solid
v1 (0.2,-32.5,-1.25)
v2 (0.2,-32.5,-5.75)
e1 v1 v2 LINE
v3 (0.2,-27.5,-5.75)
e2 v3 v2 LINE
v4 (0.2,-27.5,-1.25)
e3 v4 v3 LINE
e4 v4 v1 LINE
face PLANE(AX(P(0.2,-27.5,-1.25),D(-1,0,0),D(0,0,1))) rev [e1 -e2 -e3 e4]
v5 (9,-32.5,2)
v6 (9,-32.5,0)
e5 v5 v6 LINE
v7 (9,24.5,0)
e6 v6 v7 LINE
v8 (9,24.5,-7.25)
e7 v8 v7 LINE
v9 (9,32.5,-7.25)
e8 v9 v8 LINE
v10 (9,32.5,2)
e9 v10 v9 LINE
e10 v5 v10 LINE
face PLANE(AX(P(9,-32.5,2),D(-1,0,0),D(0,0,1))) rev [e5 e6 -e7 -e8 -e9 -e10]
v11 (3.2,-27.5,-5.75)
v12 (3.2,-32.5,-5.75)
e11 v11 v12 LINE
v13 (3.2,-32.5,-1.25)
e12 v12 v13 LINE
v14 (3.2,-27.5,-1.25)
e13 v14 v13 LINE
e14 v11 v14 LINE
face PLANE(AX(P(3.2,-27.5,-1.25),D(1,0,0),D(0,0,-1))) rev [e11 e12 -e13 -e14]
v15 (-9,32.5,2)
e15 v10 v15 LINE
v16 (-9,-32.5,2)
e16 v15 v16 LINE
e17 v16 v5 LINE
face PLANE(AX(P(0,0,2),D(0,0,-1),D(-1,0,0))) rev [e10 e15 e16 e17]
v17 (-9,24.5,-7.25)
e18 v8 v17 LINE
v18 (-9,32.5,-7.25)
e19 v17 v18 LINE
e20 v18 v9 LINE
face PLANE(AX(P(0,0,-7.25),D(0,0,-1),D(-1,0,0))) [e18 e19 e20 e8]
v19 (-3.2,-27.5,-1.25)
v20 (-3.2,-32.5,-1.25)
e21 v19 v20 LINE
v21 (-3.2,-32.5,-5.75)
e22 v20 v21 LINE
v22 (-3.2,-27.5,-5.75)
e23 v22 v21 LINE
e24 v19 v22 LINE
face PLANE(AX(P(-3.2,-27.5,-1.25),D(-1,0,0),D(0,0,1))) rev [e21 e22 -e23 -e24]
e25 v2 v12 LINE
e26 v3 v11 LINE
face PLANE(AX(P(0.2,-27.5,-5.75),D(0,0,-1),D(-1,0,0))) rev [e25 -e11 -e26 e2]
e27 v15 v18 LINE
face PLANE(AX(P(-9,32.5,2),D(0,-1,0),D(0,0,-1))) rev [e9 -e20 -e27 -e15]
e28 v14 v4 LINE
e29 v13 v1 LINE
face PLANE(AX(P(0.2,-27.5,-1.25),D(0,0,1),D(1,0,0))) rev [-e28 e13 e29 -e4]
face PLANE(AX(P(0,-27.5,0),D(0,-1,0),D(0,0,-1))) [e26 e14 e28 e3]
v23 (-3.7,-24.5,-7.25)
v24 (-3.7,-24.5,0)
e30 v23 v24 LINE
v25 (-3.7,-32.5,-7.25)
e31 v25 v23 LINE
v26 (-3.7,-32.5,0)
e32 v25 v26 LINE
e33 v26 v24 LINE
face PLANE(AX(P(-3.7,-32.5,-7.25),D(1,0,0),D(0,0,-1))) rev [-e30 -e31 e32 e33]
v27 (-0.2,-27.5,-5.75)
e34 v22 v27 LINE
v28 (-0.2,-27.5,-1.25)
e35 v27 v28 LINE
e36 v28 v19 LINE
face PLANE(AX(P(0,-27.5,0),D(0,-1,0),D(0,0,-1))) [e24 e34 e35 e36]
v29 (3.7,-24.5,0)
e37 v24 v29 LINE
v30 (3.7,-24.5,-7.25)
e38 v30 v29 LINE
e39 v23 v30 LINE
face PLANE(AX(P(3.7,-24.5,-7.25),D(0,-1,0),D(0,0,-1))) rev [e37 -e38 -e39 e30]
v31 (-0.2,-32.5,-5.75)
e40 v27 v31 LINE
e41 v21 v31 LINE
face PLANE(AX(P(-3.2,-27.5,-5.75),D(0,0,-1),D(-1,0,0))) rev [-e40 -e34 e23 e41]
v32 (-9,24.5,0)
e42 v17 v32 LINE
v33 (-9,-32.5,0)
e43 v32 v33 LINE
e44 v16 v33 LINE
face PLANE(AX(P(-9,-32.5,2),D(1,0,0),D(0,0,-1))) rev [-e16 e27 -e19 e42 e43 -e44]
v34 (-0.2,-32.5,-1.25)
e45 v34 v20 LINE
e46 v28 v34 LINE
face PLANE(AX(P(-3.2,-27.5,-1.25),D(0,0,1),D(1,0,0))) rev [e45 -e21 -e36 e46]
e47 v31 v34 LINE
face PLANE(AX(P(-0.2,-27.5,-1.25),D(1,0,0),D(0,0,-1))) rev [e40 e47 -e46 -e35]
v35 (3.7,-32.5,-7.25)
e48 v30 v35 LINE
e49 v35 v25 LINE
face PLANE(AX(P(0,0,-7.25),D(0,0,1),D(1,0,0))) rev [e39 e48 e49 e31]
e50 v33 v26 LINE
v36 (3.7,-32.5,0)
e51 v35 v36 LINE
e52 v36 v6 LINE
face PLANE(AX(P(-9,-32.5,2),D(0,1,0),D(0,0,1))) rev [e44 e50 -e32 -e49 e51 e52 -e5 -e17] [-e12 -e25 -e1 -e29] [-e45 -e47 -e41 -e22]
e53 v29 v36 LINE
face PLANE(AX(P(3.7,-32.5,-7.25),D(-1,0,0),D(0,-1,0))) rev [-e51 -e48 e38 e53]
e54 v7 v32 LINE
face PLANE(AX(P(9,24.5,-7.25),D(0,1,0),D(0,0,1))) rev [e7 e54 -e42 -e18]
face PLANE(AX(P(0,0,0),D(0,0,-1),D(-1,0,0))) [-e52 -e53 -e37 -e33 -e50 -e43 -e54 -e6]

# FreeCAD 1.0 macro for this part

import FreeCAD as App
import Part
import Sketcher

V = App.Vector


def add_polygon(sketch, points):
    """Adds a closed chain of lines whose ends are joined by coincident constraints."""
    first, n = sketch.GeometryCount, len(points)
    for a, b in zip(points, points[1:] + points[:1]):
        sketch.addGeometry(Part.LineSegment(App.Vector(*a, 0), App.Vector(*b, 0)), False)
    for i in range(n):
        sketch.addConstraint(Sketcher.Constraint("Coincident", first + i, 2, first + (i + 1) % n, 1))

doc = App.newDocument("Part")
body = doc.addObject("PartDesign::Body", "Body")

# Sketch on XY plane
sketch1 = doc.addObject("Sketcher::SketchObject", "Sketch")
body.addObject(sketch1)
sketch1.AttachmentSupport = (doc.XY_Plane, [""])
sketch1.MapMode = "FlatFace"
add_polygon(sketch1, [(-9, 32.5), (-9, -32.5), (9, -32.5), (9, 32.5)])  # lines 0-3
sketch1.addConstraint(Sketcher.Constraint("Vertical", 0))
sketch1.addConstraint(Sketcher.Constraint("Horizontal", 1))
sketch1.addConstraint(Sketcher.Constraint("Vertical", 2))
sketch1.addConstraint(Sketcher.Constraint("Horizontal", 3))
sketch1.addConstraint(Sketcher.Constraint("Symmetric", 0, 2, 2, 2, -1, 1))
sketch1.addConstraint(Sketcher.Constraint("DistanceX", 1, 1, 1, 2, 18.0))
sketch1.addConstraint(Sketcher.Constraint("DistanceY", 0, 2, 0, 1, 65.0))
pad1 = doc.addObject("PartDesign::Pad", "Pad")
body.addObject(pad1)
pad1.Profile = sketch1
pad1.Length = 2

# Sketch on XY plane
sketch2 = doc.addObject("Sketcher::SketchObject", "Sketch001")
body.addObject(sketch2)
sketch2.AttachmentSupport = (doc.XY_Plane, [""])
sketch2.MapMode = "FlatFace"
add_polygon(sketch2, [(3.7, -24.5), (3.7, -32.5), (-3.7, -32.5), (-3.7, -24.5)])  # lines 0-3
sketch2.addConstraint(Sketcher.Constraint("Vertical", 0))
sketch2.addConstraint(Sketcher.Constraint("Horizontal", 1))
sketch2.addConstraint(Sketcher.Constraint("Vertical", 2))
sketch2.addConstraint(Sketcher.Constraint("Horizontal", 3))
sketch2.addConstraint(Sketcher.Constraint("DistanceY", 0, 2, 0, 1, 8.0))
sketch2.addConstraint(Sketcher.Constraint("DistanceX", 1, 2, 1, 1, 7.4))
sketch2.addConstraint(Sketcher.Constraint("DistanceX", -1, 1, 0, 2, 3.7))
sketch2.addConstraint(Sketcher.Constraint("DistanceY", 0, 2, -1, 1, 32.5))
pad2 = doc.addObject("PartDesign::Pad", "Pad001")
body.addObject(pad2)
pad2.Profile = sketch2
pad2.Length = 7.25
pad2.Reversed = True

# Sketch on XZ plane
sketch3 = doc.addObject("Sketcher::SketchObject", "Sketch002")
body.addObject(sketch3)
sketch3.AttachmentSupport = (doc.XZ_Plane, [""])
sketch3.MapMode = "FlatFace"
sketch3.AttachmentOffset = App.Placement(V(0, 0, 32.5), App.Rotation())
add_polygon(sketch3, [(-3.2, -1.25), (-3.2, -5.75), (-0.2, -5.75), (-0.2, -1.25)])  # lines 0-3
add_polygon(sketch3, [(0.2, -1.25), (0.2, -5.75), (3.2, -5.75), (3.2, -1.25)])  # lines 4-7
sketch3.addConstraint(Sketcher.Constraint("Vertical", 0))
sketch3.addConstraint(Sketcher.Constraint("Horizontal", 1))
sketch3.addConstraint(Sketcher.Constraint("Vertical", 2))
sketch3.addConstraint(Sketcher.Constraint("Horizontal", 3))
sketch3.addConstraint(Sketcher.Constraint("Vertical", 4))
sketch3.addConstraint(Sketcher.Constraint("Horizontal", 5))
sketch3.addConstraint(Sketcher.Constraint("Vertical", 6))
sketch3.addConstraint(Sketcher.Constraint("Horizontal", 7))
sketch3.addConstraint(Sketcher.Constraint("Symmetric", 1, 2, 4, 2, -2))
sketch3.addConstraint(Sketcher.Constraint("Symmetric", 3, 2, 6, 2, -2))
sketch3.addConstraint(Sketcher.Constraint("DistanceX", 1, 1, 1, 2, 3.0))
sketch3.addConstraint(Sketcher.Constraint("DistanceY", 0, 2, 0, 1, 4.5))
sketch3.addConstraint(Sketcher.Constraint("DistanceX", 0, 2, -1, 1, 3.2))
sketch3.addConstraint(Sketcher.Constraint("DistanceY", 0, 2, -1, 1, 5.75))
pocket1 = doc.addObject("PartDesign::Pocket", "Pocket")
body.addObject(pocket1)
pocket1.Profile = sketch3
pocket1.Length = 5

# Sketch on XY plane
sketch4 = doc.addObject("Sketcher::SketchObject", "Sketch003")
body.addObject(sketch4)
sketch4.AttachmentSupport = (doc.XY_Plane, [""])
sketch4.MapMode = "FlatFace"
add_polygon(sketch4, [(9, 32.5), (9, 24.5), (-9, 24.5), (-9, 32.5)])  # lines 0-3
sketch4.addConstraint(Sketcher.Constraint("Vertical", 0))
sketch4.addConstraint(Sketcher.Constraint("Horizontal", 1))
sketch4.addConstraint(Sketcher.Constraint("Vertical", 2))
sketch4.addConstraint(Sketcher.Constraint("Horizontal", 3))
sketch4.addConstraint(Sketcher.Constraint("DistanceX", 1, 2, 1, 1, 18.0))
sketch4.addConstraint(Sketcher.Constraint("DistanceY", 0, 2, 0, 1, 8.0))
sketch4.addConstraint(Sketcher.Constraint("DistanceX", -1, 1, 0, 2, 9.0))
sketch4.addConstraint(Sketcher.Constraint("DistanceY", -1, 1, 0, 2, 24.5))
pad3 = doc.addObject("PartDesign::Pad", "Pad002")
body.addObject(pad3)
pad3.Profile = sketch4
pad3.Length = 7.25
pad3.Reversed = True

doc.recompute()
